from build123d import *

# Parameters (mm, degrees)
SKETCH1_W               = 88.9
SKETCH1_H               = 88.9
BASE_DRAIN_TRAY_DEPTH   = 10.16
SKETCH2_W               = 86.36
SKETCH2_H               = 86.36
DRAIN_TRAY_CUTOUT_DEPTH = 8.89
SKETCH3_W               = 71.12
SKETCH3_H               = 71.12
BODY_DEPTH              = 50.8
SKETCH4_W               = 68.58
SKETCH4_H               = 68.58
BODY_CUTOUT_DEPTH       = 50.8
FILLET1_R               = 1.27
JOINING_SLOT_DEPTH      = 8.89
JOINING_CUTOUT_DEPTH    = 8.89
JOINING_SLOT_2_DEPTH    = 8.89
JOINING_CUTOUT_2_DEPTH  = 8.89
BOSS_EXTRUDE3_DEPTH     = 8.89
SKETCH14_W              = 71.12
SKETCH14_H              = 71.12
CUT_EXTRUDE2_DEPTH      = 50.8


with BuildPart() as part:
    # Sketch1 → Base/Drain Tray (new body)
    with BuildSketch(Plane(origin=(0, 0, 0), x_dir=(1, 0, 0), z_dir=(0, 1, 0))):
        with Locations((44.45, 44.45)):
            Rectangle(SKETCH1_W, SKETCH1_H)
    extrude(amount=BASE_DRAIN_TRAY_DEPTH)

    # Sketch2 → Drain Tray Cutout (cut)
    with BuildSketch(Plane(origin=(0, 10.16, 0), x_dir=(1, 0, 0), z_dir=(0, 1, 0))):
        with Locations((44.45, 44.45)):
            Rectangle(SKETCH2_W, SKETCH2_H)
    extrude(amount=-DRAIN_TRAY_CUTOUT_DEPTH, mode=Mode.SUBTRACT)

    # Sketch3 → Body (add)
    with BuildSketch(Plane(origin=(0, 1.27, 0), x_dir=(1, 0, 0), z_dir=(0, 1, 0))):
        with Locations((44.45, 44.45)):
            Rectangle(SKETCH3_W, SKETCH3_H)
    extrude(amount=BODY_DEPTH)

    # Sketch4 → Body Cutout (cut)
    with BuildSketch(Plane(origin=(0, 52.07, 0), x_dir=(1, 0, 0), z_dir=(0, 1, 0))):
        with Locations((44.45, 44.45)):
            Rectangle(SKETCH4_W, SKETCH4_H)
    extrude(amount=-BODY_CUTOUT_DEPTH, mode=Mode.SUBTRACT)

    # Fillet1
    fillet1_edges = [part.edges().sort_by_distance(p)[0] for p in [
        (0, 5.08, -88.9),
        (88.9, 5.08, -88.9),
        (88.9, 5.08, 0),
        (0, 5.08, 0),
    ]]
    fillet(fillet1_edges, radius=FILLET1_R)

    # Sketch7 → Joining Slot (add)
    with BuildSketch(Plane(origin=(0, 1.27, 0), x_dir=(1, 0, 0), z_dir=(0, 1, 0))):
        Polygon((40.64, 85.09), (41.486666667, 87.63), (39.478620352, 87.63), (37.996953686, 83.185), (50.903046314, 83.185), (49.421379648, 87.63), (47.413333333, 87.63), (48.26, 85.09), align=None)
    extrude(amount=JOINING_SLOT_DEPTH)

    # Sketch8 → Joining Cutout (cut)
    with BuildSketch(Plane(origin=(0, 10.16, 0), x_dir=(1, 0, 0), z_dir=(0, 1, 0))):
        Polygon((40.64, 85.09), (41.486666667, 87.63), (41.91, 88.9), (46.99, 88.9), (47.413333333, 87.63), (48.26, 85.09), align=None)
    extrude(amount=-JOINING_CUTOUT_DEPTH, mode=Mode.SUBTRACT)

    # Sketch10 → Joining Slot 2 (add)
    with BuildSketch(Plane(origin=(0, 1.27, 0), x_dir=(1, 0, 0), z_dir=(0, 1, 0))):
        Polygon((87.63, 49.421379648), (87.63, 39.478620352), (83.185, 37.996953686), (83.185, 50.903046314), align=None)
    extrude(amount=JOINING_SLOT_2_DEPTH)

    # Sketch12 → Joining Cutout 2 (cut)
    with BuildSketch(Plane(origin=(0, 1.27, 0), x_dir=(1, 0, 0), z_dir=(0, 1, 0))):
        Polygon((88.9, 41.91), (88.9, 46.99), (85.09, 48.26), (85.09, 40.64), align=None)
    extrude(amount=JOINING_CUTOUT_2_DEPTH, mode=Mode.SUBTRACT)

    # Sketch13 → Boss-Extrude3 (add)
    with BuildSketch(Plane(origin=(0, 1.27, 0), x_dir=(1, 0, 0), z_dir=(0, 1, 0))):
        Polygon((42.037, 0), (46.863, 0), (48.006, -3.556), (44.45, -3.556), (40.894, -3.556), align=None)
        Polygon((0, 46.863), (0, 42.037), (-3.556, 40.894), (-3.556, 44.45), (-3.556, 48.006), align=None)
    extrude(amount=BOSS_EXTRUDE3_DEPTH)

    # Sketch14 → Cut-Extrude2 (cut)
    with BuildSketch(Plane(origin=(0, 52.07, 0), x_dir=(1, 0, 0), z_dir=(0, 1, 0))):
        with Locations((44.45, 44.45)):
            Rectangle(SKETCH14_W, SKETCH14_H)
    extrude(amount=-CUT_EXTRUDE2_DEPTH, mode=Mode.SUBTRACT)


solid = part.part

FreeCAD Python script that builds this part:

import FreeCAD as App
import Part
import Sketcher

V = App.Vector
Q = App.Units.Quantity


def edges_at(feature, points):
    """Names of the edges that pass closest to the given points."""
    edges = feature.Shape.Edges
    near = lambda p: min(range(len(edges)), key=lambda i: edges[i].distToShape(Part.Vertex(*p))[0])
    return sorted({f"Edge{near(p) + 1}" for p in points})

doc = App.newDocument("Part")
params = doc.addObject("Spreadsheet::Sheet", "Params")
for row, (alias, value) in enumerate([
    ("sketch1_width", "3.5 in"),
    ("pad1_length", "0.4 in"),
    ("sketch2_width", "3.4 in"),
    ("pocket1_length", "0.35 in"),
    ("sketch3_width", "2.8 in"),
    ("pad2_length", "2 in"),
    ("sketch4_width", "2.7 in"),
    ("pocket2_length", "2 in"),
    ("fillet_radius", "0.05 in"),
    ("sketch5_width", "0.3 in"),
    ("pad3_length", "0.35 in"),
    ("sketch6_width", "0.3 in"),
    ("sketch6_width2", "0.2 in"),
    ("pocket3_length", "0.35 in"),
    ("pad4_length", "0.35 in"),
    ("sketch8_height", "0.2 in"),
    ("sketch8_height2", "0.3 in"),
    ("pocket4_length", "0.35 in"),
    ("sketch9_width", "0.19 in"),
    ("sketch9_width2", "0.28 in"),
    ("pad5_length", "0.35 in"),
    ("sketch10_width", "2.8 in"),
    ("pocket5_length", "2 in"),
], start=1):
    params.set(f"A{row}", alias)
    params.set(f"B{row}", "=" + value)
    params.setAlias(f"B{row}", alias)

body = doc.addObject("PartDesign::Body", "Body")

# Sketch on XZ plane
sketch1 = body.newObject("Sketcher::SketchObject", "Sketch")
sketch1.AttachmentSupport = (doc.getObject("XZ_Plane"), [""])
sketch1.MapMode = "FlatFace"
sketch1.addGeometry([
    Part.LineSegment(V(0, -89, 0), V(0, 0, 0)),
    Part.LineSegment(V(0, 0, 0), V(89, 0, 0)),
    Part.LineSegment(V(89, 0, 0), V(89, -89, 0)),
    Part.LineSegment(V(89, -89, 0), V(0, -89, 0)),
], False)
sketch1.addConstraint([
    Sketcher.Constraint("Coincident", 0, 2, 1, 1),
    Sketcher.Constraint("Coincident", 1, 2, 2, 1),
    Sketcher.Constraint("Coincident", 2, 2, 3, 1),
    Sketcher.Constraint("Coincident", 3, 2, 0, 1),
    Sketcher.Constraint("Vertical", 0),
    Sketcher.Constraint("Horizontal", 1),
    Sketcher.Constraint("Vertical", 2),
    Sketcher.Constraint("Horizontal", 3),
    Sketcher.Constraint("Coincident", 0, 2, -1, 1),
    Sketcher.Constraint("Equal", 3, 0),
    Sketcher.Constraint("DistanceX", 1, 1, 1, 2, Q("3.5 in")),
])
sketch1.setExpression("Constraints[10]", "Params.sketch1_width")
pad1 = body.newObject("PartDesign::Pad", "Pad")
pad1.Profile = sketch1
pad1.setExpression("Length", "Params.pad1_length")
pad1.Reversed = True

# Sketch on XZ plane
sketch2 = body.newObject("Sketcher::SketchObject", "Sketch001")
sketch2.AttachmentSupport = (doc.getObject("XZ_Plane"), [""])
sketch2.MapMode = "FlatFace"
sketch2.AttachmentOffset = App.Placement(V(0, 0, -0.4 * 25.4), App.Rotation())
sketch2.addGeometry([
    Part.LineSegment(V(1, -88, 0), V(1, -1, 0)),
    Part.LineSegment(V(1, -1, 0), V(88, -1, 0)),
    Part.LineSegment(V(88, -1, 0), V(88, -88, 0)),
    Part.LineSegment(V(88, -88, 0), V(1, -88, 0)),
], False)
sketch2.addConstraint([
    Sketcher.Constraint("Coincident", 0, 2, 1, 1),
    Sketcher.Constraint("Coincident", 1, 2, 2, 1),
    Sketcher.Constraint("Coincident", 2, 2, 3, 1),
    Sketcher.Constraint("Coincident", 3, 2, 0, 1),
    Sketcher.Constraint("Vertical", 0),
    Sketcher.Constraint("Horizontal", 1),
    Sketcher.Constraint("Vertical", 2),
    Sketcher.Constraint("Horizontal", 3),
    Sketcher.Constraint("Equal", 3, 0),
    Sketcher.Constraint("DistanceX", 1, 1, 1, 2, Q("3.4 in")),
    Sketcher.Constraint("DistanceX", -1, 1, 0, 2, Q("0.05 in")),
    Sketcher.Constraint("DistanceY", 0, 2, -1, 1, Q("0.05 in")),
])
sketch2.setExpression("Constraints[9]", "Params.sketch2_width")
pocket1 = body.newObject("PartDesign::Pocket", "Pocket")
pocket1.Profile = sketch2
pocket1.setExpression("Length", "Params.pocket1_length")
pocket1.Reversed = True

# Sketch on XZ plane
sketch3 = body.newObject("Sketcher::SketchObject", "Sketch002")
sketch3.AttachmentSupport = (doc.getObject("XZ_Plane"), [""])
sketch3.MapMode = "FlatFace"
sketch3.AttachmentOffset = App.Placement(V(0, 0, -0.05 * 25.4), App.Rotation())
sketch3.addGeometry([
    Part.LineSegment(V(9, -80, 0), V(9, -9, 0)),
    Part.LineSegment(V(9, -9, 0), V(80, -9, 0)),
    Part.LineSegment(V(80, -9, 0), V(80, -80, 0)),
    Part.LineSegment(V(80, -80, 0), V(9, -80, 0)),
], False)
sketch3.addConstraint([
    Sketcher.Constraint("Coincident", 0, 2, 1, 1),
    Sketcher.Constraint("Coincident", 1, 2, 2, 1),
    Sketcher.Constraint("Coincident", 2, 2, 3, 1),
    Sketcher.Constraint("Coincident", 3, 2, 0, 1),
    Sketcher.Constraint("Vertical", 0),
    Sketcher.Constraint("Horizontal", 1),
    Sketcher.Constraint("Vertical", 2),
    Sketcher.Constraint("Horizontal", 3),
    Sketcher.Constraint("Equal", 3, 0),
    Sketcher.Constraint("DistanceX", 1, 1, 1, 2, Q("2.8 in")),
    Sketcher.Constraint("DistanceX", -1, 1, 0, 2, Q("0.35 in")),
    Sketcher.Constraint("DistanceY", 0, 2, -1, 1, Q("0.35 in")),
])
sketch3.setExpression("Constraints[9]", "Params.sketch3_width")
pad2 = body.newObject("PartDesign::Pad", "Pad001")
pad2.Profile = sketch3
pad2.setExpression("Length", "Params.pad2_length")
pad2.Reversed = True

# Sketch on XZ plane
sketch4 = body.newObject("Sketcher::SketchObject", "Sketch003")
sketch4.AttachmentSupport = (doc.getObject("XZ_Plane"), [""])
sketch4.MapMode = "FlatFace"
sketch4.AttachmentOffset = App.Placement(V(0, 0, -2.05 * 25.4), App.Rotation())
sketch4.addGeometry([
    Part.LineSegment(V(10, -79, 0), V(10, -10, 0)),
    Part.LineSegment(V(10, -10, 0), V(79, -10, 0)),
    Part.LineSegment(V(79, -10, 0), V(79, -79, 0)),
    Part.LineSegment(V(79, -79, 0), V(10, -79, 0)),
], False)
sketch4.addConstraint([
    Sketcher.Constraint("Coincident", 0, 2, 1, 1),
    Sketcher.Constraint("Coincident", 1, 2, 2, 1),
    Sketcher.Constraint("Coincident", 2, 2, 3, 1),
    Sketcher.Constraint("Coincident", 3, 2, 0, 1),
    Sketcher.Constraint("Vertical", 0),
    Sketcher.Constraint("Horizontal", 1),
    Sketcher.Constraint("Vertical", 2),
    Sketcher.Constraint("Horizontal", 3),
    Sketcher.Constraint("Equal", 3, 0),
    Sketcher.Constraint("DistanceX", 1, 1, 1, 2, Q("2.7 in")),
    Sketcher.Constraint("DistanceX", -1, 1, 0, 2, Q("0.4 in")),
    Sketcher.Constraint("DistanceY", 0, 2, -1, 1, Q("0.4 in")),
])
sketch4.setExpression("Constraints[9]", "Params.sketch4_width")
pocket2 = body.newObject("PartDesign::Pocket", "Pocket001")
pocket2.Profile = sketch4
pocket2.setExpression("Length", "Params.pocket2_length")
pocket2.Reversed = True
doc.recompute()

fillet = body.newObject("PartDesign::Fillet", "Fillet")
fillet.Base = (pocket2, edges_at(pocket2, [
    (0, 5.08, -88.9),
    (88.9, 5.08, -88.9),
    (88.9, 5.08, 0),
    (0, 5.08, 0),
]))
fillet.setExpression("Radius", "Params.fillet_radius")

# Sketch on XZ plane
sketch5 = body.newObject("Sketcher::SketchObject", "Sketch004")
sketch5.AttachmentSupport = (doc.getObject("XZ_Plane"), [""])
sketch5.MapMode = "FlatFace"
sketch5.AttachmentOffset = App.Placement(V(0, 0, -0.05 * 25.4), App.Rotation())
sketch5.addGeometry([
    Part.LineSegment(V(40.6, -85.1, 0), V(41.5, -87.6, 0)),  # 0
    Part.LineSegment(V(41.5, -87.6, 0), V(39.5, -87.6, 0)),  # 1
    Part.LineSegment(V(39.5, -87.6, 0), V(38, -83.2, 0)),  # 2
    Part.LineSegment(V(38, -83.2, 0), V(50.9, -83.2, 0)),  # 3
    Part.LineSegment(V(50.9, -83.2, 0), V(49.4, -87.6, 0)),  # 4
    Part.LineSegment(V(49.4, -87.6, 0), V(47.4, -87.6, 0)),  # 5
    Part.LineSegment(V(47.4, -87.6, 0), V(48.3, -85.1, 0)),  # 6
    Part.LineSegment(V(48.3, -85.1, 0), V(40.6, -85.1, 0)),  # 7
], False)
sketch5.addConstraint([
    Sketcher.Constraint("Coincident", 0, 2, 1, 1),
    Sketcher.Constraint("Coincident", 1, 2, 2, 1),
    Sketcher.Constraint("Coincident", 2, 2, 3, 1),
    Sketcher.Constraint("Coincident", 3, 2, 4, 1),
    Sketcher.Constraint("Coincident", 4, 2, 5, 1),
    Sketcher.Constraint("Coincident", 5, 2, 6, 1),
    Sketcher.Constraint("Coincident", 6, 2, 7, 1),
    Sketcher.Constraint("Coincident", 7, 2, 0, 1),
    Sketcher.Constraint("Horizontal", 1),
    Sketcher.Constraint("Horizontal", 3),
    Sketcher.Constraint("Horizontal", 5),
    Sketcher.Constraint("Horizontal", 7),
    Sketcher.Constraint("Parallel", 0, 2),
    Sketcher.Constraint("Parallel", 4, 6),
    Sketcher.Constraint("Horizontal", 1, 2, 4, 2),
    Sketcher.Constraint("Equal", 1, 5),
    Sketcher.Constraint("Equal", 2, 4),
    Sketcher.Constraint("DistanceX", 7, 2, 7, 1, Q("0.3 in")),
    Sketcher.Constraint("DistanceX", -1, 1, 6, 2, Q("1.9 in")),
    Sketcher.Constraint("DistanceY", 5, 2, 6, 2, Q("0.1 in")),
    Sketcher.Constraint("DistanceY", 0, 2, -1, 1, Q("3.45 in")),
    Sketcher.Constraint("DistanceY", 2, 2, -1, 1, Q("3.275 in")),
    Sketcher.Constraint("Distance", 2, Q("4.685441 mm")),
    Sketcher.Constraint("DistanceX", 1, 2, 1, 1, Q("2.008046 mm")),
])
sketch5.setExpression("Constraints[17]", "Params.sketch5_width")
pad3 = body.newObject("PartDesign::Pad", "Pad002")
pad3.Profile = sketch5
pad3.setExpression("Length", "Params.pad3_length")
pad3.Reversed = True

# Sketch on XZ plane
sketch6 = body.newObject("Sketcher::SketchObject", "Sketch005")
sketch6.AttachmentSupport = (doc.getObject("XZ_Plane"), [""])
sketch6.MapMode = "FlatFace"
sketch6.AttachmentOffset = App.Placement(V(0, 0, -0.4 * 25.4), App.Rotation())
sketch6.addGeometry([
    Part.LineSegment(V(41.5, -87.6, 0), V(40.6, -85.1, 0)),  # 0
    Part.LineSegment(V(40.6, -85.1, 0), V(48.3, -85.1, 0)),  # 1
    Part.LineSegment(V(48.3, -85.1, 0), V(47.4, -87.6, 0)),  # 2
    Part.LineSegment(V(47.4, -87.6, 0), V(47, -88.9, 0)),  # 3
    Part.LineSegment(V(47, -88.9, 0), V(41.9, -88.9, 0)),  # 4
    Part.LineSegment(V(41.9, -88.9, 0), V(41.5, -87.6, 0)),  # 5
], False)
sketch6.addConstraint([
    Sketcher.Constraint("Coincident", 0, 2, 1, 1),
    Sketcher.Constraint("Coincident", 1, 2, 2, 1),
    Sketcher.Constraint("Coincident", 2, 2, 3, 1),
    Sketcher.Constraint("Coincident", 3, 2, 4, 1),
    Sketcher.Constraint("Coincident", 4, 2, 5, 1),
    Sketcher.Constraint("Coincident", 5, 2, 0, 1),
    Sketcher.Constraint("Horizontal", 1),
    Sketcher.Constraint("Horizontal", 4),
    Sketcher.Constraint("Parallel", 2, 3),
    Sketcher.Constraint("Parallel", 0, 5),
    Sketcher.Constraint("Horizontal", 2, 2, 5, 2),
    Sketcher.Constraint("Equal", 0, 2),
    Sketcher.Constraint("DistanceX", 1, 1, 1, 2, Q("0.3 in")),
    Sketcher.Constraint("DistanceX", 4, 2, 4, 1, Q("0.2 in")),
    Sketcher.Constraint("DistanceX", -1, 1, 0, 2, Q("1.6 in")),
    Sketcher.Constraint("DistanceY", 3, 2, -1, 1, Q("3.5 in")),
    Sketcher.Constraint("DistanceY", 2, 2, 1, 2, Q("0.1 in")),
    Sketcher.Constraint("DistanceY", 0, 2, -1, 1, Q("3.35 in")),
])
sketch6.setExpression("Constraints[12]", "Params.sketch6_width")
sketch6.setExpression("Constraints[13]", "Params.sketch6_width2")
pocket3 = body.newObject("PartDesign::Pocket", "Pocket002")
pocket3.Profile = sketch6
pocket3.setExpression("Length", "Params.pocket3_length")
pocket3.Reversed = True

# Sketch on XZ plane
sketch7 = body.newObject("Sketcher::SketchObject", "Sketch006")
sketch7.AttachmentSupport = (doc.getObject("XZ_Plane"), [""])
sketch7.MapMode = "FlatFace"
sketch7.AttachmentOffset = App.Placement(V(0, 0, -0.05 * 25.4), App.Rotation())
sketch7.addGeometry([
    Part.LineSegment(V(87.6, -39.5, 0), V(87.6, -49.4, 0)),
    Part.LineSegment(V(87.6, -49.4, 0), V(83.2, -50.9, 0)),
    Part.LineSegment(V(83.2, -50.9, 0), V(83.2, -38, 0)),
    Part.LineSegment(V(83.2, -38, 0), V(87.6, -39.5, 0)),
], False)
sketch7.addConstraint([
    Sketcher.Constraint("Coincident", 0, 2, 1, 1),
    Sketcher.Constraint("Coincident", 1, 2, 2, 1),
    Sketcher.Constraint("Coincident", 2, 2, 3, 1),
    Sketcher.Constraint("Coincident", 3, 2, 0, 1),
    Sketcher.Constraint("Vertical", 0),
    Sketcher.Constraint("Vertical", 2),
    Sketcher.Constraint("Equal", 1, 3),
    Sketcher.Constraint("DistanceX", -1, 1, 0, 2, Q("3.45 in")),
    Sketcher.Constraint("DistanceX", -1, 1, 1, 2, Q("3.275 in")),
    Sketcher.Constraint("DistanceY", 0, 2, 0, 1, Q("9.942759 mm")),
    Sketcher.Constraint("Distance", 1, Q("4.685441 mm")),
    Sketcher.Constraint("DistanceY", 0, 2, -1, 1, Q("49.42138 mm")),
])
pad4 = body.newObject("PartDesign::Pad", "Pad003")
pad4.Profile = sketch7
pad4.setExpression("Length", "Params.pad4_length")
pad4.Reversed = True

# Sketch on XZ plane
sketch8 = body.newObject("Sketcher::SketchObject", "Sketch007")
sketch8.AttachmentSupport = (doc.getObject("XZ_Plane"), [""])
sketch8.MapMode = "FlatFace"
sketch8.AttachmentOffset = App.Placement(V(0, 0, -0.05 * 25.4), App.Rotation())
sketch8.addGeometry([
    Part.LineSegment(V(88.9, -41.9, 0), V(88.9, -47, 0)),
    Part.LineSegment(V(88.9, -47, 0), V(85.1, -48.3, 0)),
    Part.LineSegment(V(85.1, -48.3, 0), V(85.1, -40.6, 0)),
    Part.LineSegment(V(85.1, -40.6, 0), V(88.9, -41.9, 0)),
], False)
sketch8.addConstraint([
    Sketcher.Constraint("Coincident", 0, 2, 1, 1),
    Sketcher.Constraint("Coincident", 1, 2, 2, 1),
    Sketcher.Constraint("Coincident", 2, 2, 3, 1),
    Sketcher.Constraint("Coincident", 3, 2, 0, 1),
    Sketcher.Constraint("Vertical", 0),
    Sketcher.Constraint("Vertical", 2),
    Sketcher.Constraint("Equal", 1, 3),
    Sketcher.Constraint("DistanceY", 0, 2, 0, 1, Q("0.2 in")),
    Sketcher.Constraint("DistanceY", 2, 1, 2, 2, Q("0.3 in")),
    Sketcher.Constraint("DistanceX", -1, 1, 0, 2, Q("3.5 in")),
    Sketcher.Constraint("DistanceY", 1, 2, -1, 1, Q("1.9 in")),
    Sketcher.Constraint("DistanceX", -1, 1, 1, 2, Q("3.35 in")),
])
sketch8.setExpression("Constraints[7]", "Params.sketch8_height")
sketch8.setExpression("Constraints[8]", "Params.sketch8_height2")
pocket4 = body.newObject("PartDesign::Pocket", "Pocket003")
pocket4.Profile = sketch8
pocket4.setExpression("Length", "Params.pocket4_length")

# Sketch on XZ plane
sketch9 = body.newObject("Sketcher::SketchObject", "Sketch008")
sketch9.AttachmentSupport = (doc.getObject("XZ_Plane"), [""])
sketch9.MapMode = "FlatFace"
sketch9.AttachmentOffset = App.Placement(V(0, 0, -0.05 * 25.4), App.Rotation())
sketch9.addGeometry([
    Part.LineSegment(V(46.9, 0, 0), V(42, 0, 0)),  # 0
    Part.LineSegment(V(42, 0, 0), V(40.9, 3.6, 0)),  # 1
    Part.LineSegment(V(40.9, 3.6, 0), V(48, 3.6, 0)),  # 2
    Part.LineSegment(V(48, 3.6, 0), V(46.9, 0, 0)),  # 3
    Part.LineSegment(V(0, -42, 0), V(0, -46.9, 0)),  # 4
    Part.LineSegment(V(0, -46.9, 0), V(-3.6, -48, 0)),  # 5
    Part.LineSegment(V(-3.6, -48, 0), V(-3.6, -40.9, 0)),  # 6
    Part.LineSegment(V(-3.6, -40.9, 0), V(0, -42, 0)),  # 7
], False)
sketch9.addConstraint([
    Sketcher.Constraint("Coincident", 0, 2, 1, 1),
    Sketcher.Constraint("Coincident", 1, 2, 2, 1),
    Sketcher.Constraint("Coincident", 2, 2, 3, 1),
    Sketcher.Constraint("Coincident", 3, 2, 0, 1),
    Sketcher.Constraint("Coincident", 4, 2, 5, 1),
    Sketcher.Constraint("Coincident", 5, 2, 6, 1),
    Sketcher.Constraint("Coincident", 6, 2, 7, 1),
    Sketcher.Constraint("Coincident", 7, 2, 4, 1),
    Sketcher.Constraint("Horizontal", 0),
    Sketcher.Constraint("Horizontal", 2),
    Sketcher.Constraint("Vertical", 4),
    Sketcher.Constraint("Vertical", 6),
    Sketcher.Constraint("PointOnObject", 0, 2, -1),
    Sketcher.Constraint("PointOnObject", 4, 2, -2),
    Sketcher.Constraint("Perpendicular", 1, 5),
    Sketcher.Constraint("Perpendicular", 3, 7),
    Sketcher.Constraint("Equal", 0, 4),
    Sketcher.Constraint("Equal", 2, 6),
    Sketcher.Constraint("Equal", 1, 3),
    Sketcher.Constraint("DistanceX", 0, 2, 0, 1, Q("0.19 in")),
    Sketcher.Constraint("DistanceX", 2, 1, 2, 2, Q("0.28 in")),
    Sketcher.Constraint("DistanceX", -1, 1, 1, 2, Q("1.61 in")),
    Sketcher.Constraint("DistanceY", -1, 1, 1, 2, Q("0.14 in")),
    Sketcher.Constraint("DistanceY", 5, 2, -1, 1, Q("1.89 in")),
])
sketch9.setExpression("Constraints[19]", "Params.sketch9_width")
sketch9.setExpression("Constraints[20]", "Params.sketch9_width2")
pad5 = body.newObject("PartDesign::Pad", "Pad004")
pad5.Profile = sketch9
pad5.setExpression("Length", "Params.pad5_length")
pad5.Reversed = True

# Sketch on XZ plane
sketch10 = body.newObject("Sketcher::SketchObject", "Sketch009")
sketch10.AttachmentSupport = (doc.getObject("XZ_Plane"), [""])
sketch10.MapMode = "FlatFace"
sketch10.AttachmentOffset = App.Placement(V(0, 0, -2.05 * 25.4), App.Rotation())
sketch10.addGeometry([
    Part.LineSegment(V(9, -80, 0), V(9, -9, 0)),
    Part.LineSegment(V(9, -9, 0), V(80, -9, 0)),
    Part.LineSegment(V(80, -9, 0), V(80, -80, 0)),
    Part.LineSegment(V(80, -80, 0), V(9, -80, 0)),
], False)
sketch10.addConstraint([
    Sketcher.Constraint("Coincident", 0, 2, 1, 1),
    Sketcher.Constraint("Coincident", 1, 2, 2, 1),
    Sketcher.Constraint("Coincident", 2, 2, 3, 1),
    Sketcher.Constraint("Coincident", 3, 2, 0, 1),
    Sketcher.Constraint("Vertical", 0),
    Sketcher.Constraint("Horizontal", 1),
    Sketcher.Constraint("Vertical", 2),
    Sketcher.Constraint("Horizontal", 3),
    Sketcher.Constraint("Equal", 3, 0),
    Sketcher.Constraint("DistanceX", 1, 1, 1, 2, Q("2.8 in")),
    Sketcher.Constraint("DistanceX", -1, 1, 0, 2, Q("0.35 in")),
    Sketcher.Constraint("DistanceY", 0, 2, -1, 1, Q("0.35 in")),
])
sketch10.setExpression("Constraints[9]", "Params.sketch10_width")
pocket5 = body.newObject("PartDesign::Pocket", "Pocket004")
pocket5.Profile = sketch10
pocket5.setExpression("Length", "Params.pocket5_length")
pocket5.Reversed = True

doc.recompute()
